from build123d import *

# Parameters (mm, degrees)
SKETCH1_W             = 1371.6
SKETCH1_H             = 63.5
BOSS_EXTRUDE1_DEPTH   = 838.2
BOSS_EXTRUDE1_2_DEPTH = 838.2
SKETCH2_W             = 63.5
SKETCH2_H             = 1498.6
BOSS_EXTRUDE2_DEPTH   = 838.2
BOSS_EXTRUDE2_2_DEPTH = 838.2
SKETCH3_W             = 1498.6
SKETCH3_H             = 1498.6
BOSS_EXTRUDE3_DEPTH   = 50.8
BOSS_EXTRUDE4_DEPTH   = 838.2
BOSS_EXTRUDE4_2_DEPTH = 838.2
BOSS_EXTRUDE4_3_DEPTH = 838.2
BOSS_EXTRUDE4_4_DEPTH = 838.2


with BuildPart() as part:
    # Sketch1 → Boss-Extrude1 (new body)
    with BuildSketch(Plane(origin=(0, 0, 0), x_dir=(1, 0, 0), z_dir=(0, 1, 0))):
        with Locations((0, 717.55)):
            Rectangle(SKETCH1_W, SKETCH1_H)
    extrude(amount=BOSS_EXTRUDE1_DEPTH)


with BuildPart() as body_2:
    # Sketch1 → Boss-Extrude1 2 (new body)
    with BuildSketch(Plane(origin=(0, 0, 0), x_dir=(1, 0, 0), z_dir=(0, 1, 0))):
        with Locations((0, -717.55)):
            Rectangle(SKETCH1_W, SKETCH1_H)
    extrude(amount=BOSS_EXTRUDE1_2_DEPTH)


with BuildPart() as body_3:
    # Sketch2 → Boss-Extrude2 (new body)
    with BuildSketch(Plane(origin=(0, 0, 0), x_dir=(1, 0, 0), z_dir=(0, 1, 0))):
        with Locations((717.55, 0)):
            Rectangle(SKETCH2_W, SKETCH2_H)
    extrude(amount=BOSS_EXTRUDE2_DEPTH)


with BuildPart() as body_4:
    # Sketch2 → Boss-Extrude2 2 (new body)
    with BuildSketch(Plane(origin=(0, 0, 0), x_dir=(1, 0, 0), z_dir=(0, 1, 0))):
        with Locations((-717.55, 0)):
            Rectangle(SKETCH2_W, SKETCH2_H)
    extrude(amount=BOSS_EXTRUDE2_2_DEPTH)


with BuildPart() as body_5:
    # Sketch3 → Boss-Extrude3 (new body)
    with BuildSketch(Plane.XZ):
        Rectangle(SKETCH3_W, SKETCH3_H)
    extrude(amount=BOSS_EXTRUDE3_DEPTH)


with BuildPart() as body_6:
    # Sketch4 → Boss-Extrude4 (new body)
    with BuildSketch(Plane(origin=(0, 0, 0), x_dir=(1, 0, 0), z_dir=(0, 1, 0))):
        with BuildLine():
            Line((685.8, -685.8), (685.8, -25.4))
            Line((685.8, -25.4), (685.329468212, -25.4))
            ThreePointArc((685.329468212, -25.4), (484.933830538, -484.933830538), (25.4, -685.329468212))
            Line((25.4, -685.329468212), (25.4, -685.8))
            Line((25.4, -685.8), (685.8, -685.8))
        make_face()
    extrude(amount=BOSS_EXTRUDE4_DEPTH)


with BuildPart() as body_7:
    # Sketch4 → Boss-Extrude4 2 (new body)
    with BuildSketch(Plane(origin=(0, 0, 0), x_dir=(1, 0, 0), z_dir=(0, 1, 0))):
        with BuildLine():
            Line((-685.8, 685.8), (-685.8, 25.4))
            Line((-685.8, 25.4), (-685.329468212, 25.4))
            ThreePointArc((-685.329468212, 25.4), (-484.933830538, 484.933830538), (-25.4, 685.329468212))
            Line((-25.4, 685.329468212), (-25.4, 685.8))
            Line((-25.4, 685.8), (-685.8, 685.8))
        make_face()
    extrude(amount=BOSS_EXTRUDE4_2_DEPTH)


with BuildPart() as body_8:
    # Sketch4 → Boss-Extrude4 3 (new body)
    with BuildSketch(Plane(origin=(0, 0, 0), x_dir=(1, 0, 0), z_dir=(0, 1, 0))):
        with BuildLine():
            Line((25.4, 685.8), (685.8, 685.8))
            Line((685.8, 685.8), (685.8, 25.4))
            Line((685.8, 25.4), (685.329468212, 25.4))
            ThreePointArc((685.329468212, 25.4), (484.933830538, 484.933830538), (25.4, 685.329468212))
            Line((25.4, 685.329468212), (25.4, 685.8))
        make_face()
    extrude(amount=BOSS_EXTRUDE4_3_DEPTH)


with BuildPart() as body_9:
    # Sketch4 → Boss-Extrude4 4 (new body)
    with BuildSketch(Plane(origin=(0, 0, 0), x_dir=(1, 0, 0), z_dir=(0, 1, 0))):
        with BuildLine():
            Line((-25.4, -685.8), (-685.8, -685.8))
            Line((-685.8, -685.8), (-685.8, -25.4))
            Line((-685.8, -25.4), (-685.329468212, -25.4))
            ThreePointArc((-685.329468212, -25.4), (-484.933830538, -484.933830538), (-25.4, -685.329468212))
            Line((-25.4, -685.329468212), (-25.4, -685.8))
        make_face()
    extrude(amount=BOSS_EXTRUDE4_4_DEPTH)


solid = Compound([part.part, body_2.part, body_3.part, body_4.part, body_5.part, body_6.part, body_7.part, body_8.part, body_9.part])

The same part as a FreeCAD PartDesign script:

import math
import FreeCAD as App
import Part
import Sketcher
Q = App.Units.Quantity


def add_polygon(sketch, points):
    """Adds a closed chain of lines whose ends are joined by coincident constraints."""
    first, n = sketch.GeometryCount, len(points)
    for a, b in zip(points, points[1:] + points[:1]):
        sketch.addGeometry(Part.LineSegment(App.Vector(*a, 0), App.Vector(*b, 0)), False)
    for i in range(n):
        sketch.addConstraint(Sketcher.Constraint("Coincident", first + i, 2, first + (i + 1) % n, 1))

doc = App.newDocument("Part")
body = doc.addObject("PartDesign::Body", "Body")

# Sketch on XZ plane
sketch1 = body.newObject("Sketcher::SketchObject", "Sketch")
sketch1.AttachmentSupport = (doc.getObject("XZ_Plane"), [""])
sketch1.MapMode = "FlatFace"
add_polygon(sketch1, [(-686, -749), (-686, -686), (686, -686), (686, -749)])  # lines 0-3
sketch1.addConstraint(Sketcher.Constraint("Vertical", 0))
sketch1.addConstraint(Sketcher.Constraint("Horizontal", 1))
sketch1.addConstraint(Sketcher.Constraint("Vertical", 2))
sketch1.addConstraint(Sketcher.Constraint("Horizontal", 3))
sketch1.addConstraint(Sketcher.Constraint("DistanceX", 1, 1, 1, 2, Q("54 in")))
sketch1.addConstraint(Sketcher.Constraint("DistanceY", 0, 1, 0, 2, Q("2.5 in")))
sketch1.addConstraint(Sketcher.Constraint("DistanceX", 0, 2, -1, 1, Q("27 in")))
sketch1.addConstraint(Sketcher.Constraint("DistanceY", 0, 2, -1, 1, Q("27 in")))
pad1 = body.newObject("PartDesign::Pad", "Pad")
pad1.Profile = sketch1
pad1.Length = Q("33 in")
pad1.Reversed = True
body2 = doc.addObject("PartDesign::Body", "Body001")

# Sketch on XZ plane
sketch2 = body2.newObject("Sketcher::SketchObject", "Sketch001")
sketch2.AttachmentSupport = (doc.getObject("XZ_Plane001"), [""])
sketch2.MapMode = "FlatFace"
add_polygon(sketch2, [(-686, 686), (-686, 749), (686, 749), (686, 686)])  # lines 0-3
sketch2.addConstraint(Sketcher.Constraint("Vertical", 0))
sketch2.addConstraint(Sketcher.Constraint("Horizontal", 1))
sketch2.addConstraint(Sketcher.Constraint("Vertical", 2))
sketch2.addConstraint(Sketcher.Constraint("Horizontal", 3))
sketch2.addConstraint(Sketcher.Constraint("DistanceX", 1, 1, 1, 2, Q("54 in")))
sketch2.addConstraint(Sketcher.Constraint("DistanceY", 0, 1, 0, 2, Q("2.5 in")))
sketch2.addConstraint(Sketcher.Constraint("DistanceX", 0, 2, -1, 1, Q("27 in")))
sketch2.addConstraint(Sketcher.Constraint("DistanceY", -1, 1, 2, 2, Q("27 in")))
pad2 = body2.newObject("PartDesign::Pad", "Pad001")
pad2.Profile = sketch2
pad2.Length = Q("33 in")
pad2.Reversed = True
body3 = doc.addObject("PartDesign::Body", "Body002")

# Sketch on XZ plane
sketch3 = body3.newObject("Sketcher::SketchObject", "Sketch002")
sketch3.AttachmentSupport = (doc.getObject("XZ_Plane002"), [""])
sketch3.MapMode = "FlatFace"
add_polygon(sketch3, [(686, -749), (686, 749), (749, 749), (749, -749)])  # lines 0-3
sketch3.addConstraint(Sketcher.Constraint("Vertical", 0))
sketch3.addConstraint(Sketcher.Constraint("Horizontal", 1))
sketch3.addConstraint(Sketcher.Constraint("Vertical", 2))
sketch3.addConstraint(Sketcher.Constraint("Horizontal", 3))
sketch3.addConstraint(Sketcher.Constraint("DistanceY", 0, 1, 0, 2, Q("59 in")))
sketch3.addConstraint(Sketcher.Constraint("DistanceX", 1, 1, 1, 2, Q("2.5 in")))
sketch3.addConstraint(Sketcher.Constraint("DistanceX", -1, 1, 0, 2, Q("27 in")))
sketch3.addConstraint(Sketcher.Constraint("DistanceY", -1, 1, 0, 2, Q("29.5 in")))
pad3 = body3.newObject("PartDesign::Pad", "Pad002")
pad3.Profile = sketch3
pad3.Length = Q("33 in")
pad3.Reversed = True
body4 = doc.addObject("PartDesign::Body", "Body003")

# Sketch on XZ plane
sketch4 = body4.newObject("Sketcher::SketchObject", "Sketch003")
sketch4.AttachmentSupport = (doc.getObject("XZ_Plane003"), [""])
sketch4.MapMode = "FlatFace"
add_polygon(sketch4, [(-749, -749), (-749, 749), (-686, 749), (-686, -749)])  # lines 0-3
sketch4.addConstraint(Sketcher.Constraint("Vertical", 0))
sketch4.addConstraint(Sketcher.Constraint("Horizontal", 1))
sketch4.addConstraint(Sketcher.Constraint("Vertical", 2))
sketch4.addConstraint(Sketcher.Constraint("Horizontal", 3))
sketch4.addConstraint(Sketcher.Constraint("DistanceY", 0, 1, 0, 2, Q("59 in")))
sketch4.addConstraint(Sketcher.Constraint("DistanceX", 1, 1, 1, 2, Q("2.5 in")))
sketch4.addConstraint(Sketcher.Constraint("DistanceX", 1, 2, -1, 1, Q("27 in")))
sketch4.addConstraint(Sketcher.Constraint("DistanceY", -1, 1, 0, 2, Q("29.5 in")))
pad4 = body4.newObject("PartDesign::Pad", "Pad003")
pad4.Profile = sketch4
pad4.Length = Q("33 in")
pad4.Reversed = True
body5 = doc.addObject("PartDesign::Body", "Body004")

# Sketch on XZ plane
sketch5 = body5.newObject("Sketcher::SketchObject", "Sketch004")
sketch5.AttachmentSupport = (doc.getObject("XZ_Plane004"), [""])
sketch5.MapMode = "FlatFace"
add_polygon(sketch5, [(-749, 749), (-749, -749), (749, -749), (749, 749)])  # lines 0-3
sketch5.addConstraint(Sketcher.Constraint("Vertical", 0))
sketch5.addConstraint(Sketcher.Constraint("Horizontal", 1))
sketch5.addConstraint(Sketcher.Constraint("Vertical", 2))
sketch5.addConstraint(Sketcher.Constraint("Horizontal", 3))
sketch5.addConstraint(Sketcher.Constraint("Symmetric", 0, 2, 2, 2, -1, 1))
sketch5.addConstraint(Sketcher.Constraint("Equal", 3, 0))
sketch5.addConstraint(Sketcher.Constraint("DistanceX", 1, 1, 1, 2, Q("59 in")))
pad5 = body5.newObject("PartDesign::Pad", "Pad004")
pad5.Profile = sketch5
pad5.Length = Q("2 in")
body6 = doc.addObject("PartDesign::Body", "Body005")

# Sketch on XZ plane
sketch6 = body6.newObject("Sketcher::SketchObject", "Sketch005")
sketch6.AttachmentSupport = (doc.getObject("XZ_Plane005"), [""])
sketch6.MapMode = "FlatFace"
sketch6.addGeometry(Part.LineSegment(App.Vector(685.8, 685.8, 0), App.Vector(685.8, 25.4, 0)), False)
sketch6.addGeometry(Part.LineSegment(App.Vector(685.8, 25.4, 0), App.Vector(685.33, 25.4, 0)), False)
sketch6.addGeometry(Part.ArcOfCircle(Part.Circle(App.Vector(0, 0, 0), App.Vector(0, 0, 1), 685.8), math.radians(2), math.radians(88)), False)
sketch6.addGeometry(Part.LineSegment(App.Vector(25.4, 685.33, 0), App.Vector(25.4, 685.8, 0)), False)
sketch6.addGeometry(Part.LineSegment(App.Vector(25.4, 685.8, 0), App.Vector(685.8, 685.8, 0)), False)
sketch6.addConstraint(Sketcher.Constraint("Coincident", 0, 2, 1, 1))
sketch6.addConstraint(Sketcher.Constraint("Coincident", 1, 2, 2, 1))
sketch6.addConstraint(Sketcher.Constraint("Coincident", 2, 2, 3, 1))
sketch6.addConstraint(Sketcher.Constraint("Coincident", 3, 2, 4, 1))
sketch6.addConstraint(Sketcher.Constraint("Coincident", 4, 2, 0, 1))
sketch6.addConstraint(Sketcher.Constraint("Vertical", 0))
sketch6.addConstraint(Sketcher.Constraint("Horizontal", 1))
sketch6.addConstraint(Sketcher.Constraint("Vertical", 3))
sketch6.addConstraint(Sketcher.Constraint("Horizontal", 4))
sketch6.addConstraint(Sketcher.Constraint("Coincident", 2, 3, -1, 1))
sketch6.addConstraint(Sketcher.Constraint("Equal", 4, 0))
sketch6.addConstraint(Sketcher.Constraint("Equal", 1, 3))
sketch6.addConstraint(Sketcher.Constraint("Radius", 2, Q("27 in")))
sketch6.addConstraint(Sketcher.Constraint("DistanceX", 4, 1, 4, 2, Q("26 in")))
sketch6.addConstraint(Sketcher.Constraint("DistanceX", -1, 1, 0, 2, Q("27 in")))
pad6 = body6.newObject("PartDesign::Pad", "Pad005")
pad6.Profile = sketch6
pad6.Length = Q("33 in")
pad6.Reversed = True
body7 = doc.addObject("PartDesign::Body", "Body006")

# Sketch on XZ plane
sketch7 = body7.newObject("Sketcher::SketchObject", "Sketch006")
sketch7.AttachmentSupport = (doc.getObject("XZ_Plane006"), [""])
sketch7.MapMode = "FlatFace"
sketch7.addGeometry(Part.LineSegment(App.Vector(-685.8, -685.8, 0), App.Vector(-685.8, -25.4, 0)), False)
sketch7.addGeometry(Part.LineSegment(App.Vector(-685.8, -25.4, 0), App.Vector(-685.329468, -25.4, 0)), False)
sketch7.addGeometry(Part.ArcOfCircle(Part.Circle(App.Vector(0, 0, 0), App.Vector(0, 0, 1), 685.8), math.radians(-177.877449), math.radians(-92.122551)), False)
sketch7.addGeometry(Part.LineSegment(App.Vector(-25.4, -685.329468, 0), App.Vector(-25.4, -685.8, 0)), False)
sketch7.addGeometry(Part.LineSegment(App.Vector(-25.4, -685.8, 0), App.Vector(-685.8, -685.8, 0)), False)
sketch7.addConstraint(Sketcher.Constraint("Coincident", 0, 2, 1, 1))
sketch7.addConstraint(Sketcher.Constraint("Coincident", 1, 2, 2, 1))
sketch7.addConstraint(Sketcher.Constraint("Coincident", 2, 2, 3, 1))
sketch7.addConstraint(Sketcher.Constraint("Coincident", 3, 2, 4, 1))
sketch7.addConstraint(Sketcher.Constraint("Coincident", 4, 2, 0, 1))
sketch7.addConstraint(Sketcher.Constraint("Vertical", 0))
sketch7.addConstraint(Sketcher.Constraint("Horizontal", 1))
sketch7.addConstraint(Sketcher.Constraint("Vertical", 3))
sketch7.addConstraint(Sketcher.Constraint("Horizontal", 4))
sketch7.addConstraint(Sketcher.Constraint("Coincident", 2, 3, -1, 1))
sketch7.addConstraint(Sketcher.Constraint("Equal", 4, 0))
sketch7.addConstraint(Sketcher.Constraint("Equal", 1, 3))
sketch7.addConstraint(Sketcher.Constraint("Radius", 2, Q("27 in")))
sketch7.addConstraint(Sketcher.Constraint("DistanceX", 4, 2, 4, 1, Q("26 in")))
sketch7.addConstraint(Sketcher.Constraint("DistanceX", 0, 2, -1, 1, Q("27 in")))
pad7 = body7.newObject("PartDesign::Pad", "Pad006")
pad7.Profile = sketch7
pad7.Length = Q("33 in")
pad7.Reversed = True
body8 = doc.addObject("PartDesign::Body", "Body007")

# Sketch on XZ plane
sketch8 = body8.newObject("Sketcher::SketchObject", "Sketch007")
sketch8.AttachmentSupport = (doc.getObject("XZ_Plane007"), [""])
sketch8.MapMode = "FlatFace"
sketch8.addGeometry(Part.LineSegment(App.Vector(685.8, -685.8, 0), App.Vector(25.4, -685.8, 0)), False)
sketch8.addGeometry(Part.LineSegment(App.Vector(25.4, -685.8, 0), App.Vector(25.4, -685.33, 0)), False)
sketch8.addGeometry(Part.ArcOfCircle(Part.Circle(App.Vector(0, 0, 0), App.Vector(0, 0, 1), 685.8), math.radians(-88), math.radians(-2)), False)
sketch8.addGeometry(Part.LineSegment(App.Vector(685.33, -25.4, 0), App.Vector(685.8, -25.4, 0)), False)
sketch8.addGeometry(Part.LineSegment(App.Vector(685.8, -25.4, 0), App.Vector(685.8, -685.8, 0)), False)
sketch8.addConstraint(Sketcher.Constraint("Coincident", 0, 2, 1, 1))
sketch8.addConstraint(Sketcher.Constraint("Coincident", 1, 2, 2, 1))
sketch8.addConstraint(Sketcher.Constraint("Coincident", 2, 2, 3, 1))
sketch8.addConstraint(Sketcher.Constraint("Coincident", 3, 2, 4, 1))
sketch8.addConstraint(Sketcher.Constraint("Coincident", 4, 2, 0, 1))
sketch8.addConstraint(Sketcher.Constraint("Horizontal", 0))
sketch8.addConstraint(Sketcher.Constraint("Vertical", 1))
sketch8.addConstraint(Sketcher.Constraint("Horizontal", 3))
sketch8.addConstraint(Sketcher.Constraint("Vertical", 4))
sketch8.addConstraint(Sketcher.Constraint("Coincident", 2, 3, -1, 1))
sketch8.addConstraint(Sketcher.Constraint("Equal", 3, 1))
sketch8.addConstraint(Sketcher.Constraint("Equal", 0, 4))
sketch8.addConstraint(Sketcher.Constraint("Radius", 2, Q("27 in")))
sketch8.addConstraint(Sketcher.Constraint("DistanceX", 0, 2, 0, 1, Q("26 in")))
sketch8.addConstraint(Sketcher.Constraint("DistanceX", -1, 1, 0, 2, Q("1 in")))
pad8 = body8.newObject("PartDesign::Pad", "Pad007")
pad8.Profile = sketch8
pad8.Length = Q("33 in")
pad8.Reversed = True
body9 = doc.addObject("PartDesign::Body", "Body008")

# Sketch on XZ plane
sketch9 = body9.newObject("Sketcher::SketchObject", "Sketch008")
sketch9.AttachmentSupport = (doc.getObject("XZ_Plane008"), [""])
sketch9.MapMode = "FlatFace"
sketch9.addGeometry(Part.LineSegment(App.Vector(-685.8, 685.8, 0), App.Vector(-25.4, 685.8, 0)), False)
sketch9.addGeometry(Part.LineSegment(App.Vector(-25.4, 685.8, 0), App.Vector(-25.4, 685.33, 0)), False)
sketch9.addGeometry(Part.ArcOfCircle(Part.Circle(App.Vector(0, 0, 0), App.Vector(0, 0, 1), 685.8), math.radians(92), math.radians(178)), False)
sketch9.addGeometry(Part.LineSegment(App.Vector(-685.33, 25.4, 0), App.Vector(-685.8, 25.4, 0)), False)
sketch9.addGeometry(Part.LineSegment(App.Vector(-685.8, 25.4, 0), App.Vector(-685.8, 685.8, 0)), False)
sketch9.addConstraint(Sketcher.Constraint("Coincident", 0, 2, 1, 1))
sketch9.addConstraint(Sketcher.Constraint("Coincident", 1, 2, 2, 1))
sketch9.addConstraint(Sketcher.Constraint("Coincident", 2, 2, 3, 1))
sketch9.addConstraint(Sketcher.Constraint("Coincident", 3, 2, 4, 1))
sketch9.addConstraint(Sketcher.Constraint("Coincident", 4, 2, 0, 1))
sketch9.addConstraint(Sketcher.Constraint("Horizontal", 0))
sketch9.addConstraint(Sketcher.Constraint("Vertical", 1))
sketch9.addConstraint(Sketcher.Constraint("Horizontal", 3))
sketch9.addConstraint(Sketcher.Constraint("Vertical", 4))
sketch9.addConstraint(Sketcher.Constraint("Coincident", 2, 3, -1, 1))
sketch9.addConstraint(Sketcher.Constraint("Equal", 3, 1))
sketch9.addConstraint(Sketcher.Constraint("Equal", 0, 4))
sketch9.addConstraint(Sketcher.Constraint("Radius", 2, Q("27 in")))
sketch9.addConstraint(Sketcher.Constraint("DistanceX", 0, 1, 0, 2, Q("26 in")))
sketch9.addConstraint(Sketcher.Constraint("DistanceX", 0, 2, -1, 1, Q("1 in")))
pad9 = body9.newObject("PartDesign::Pad", "Pad008")
pad9.Profile = sketch9
pad9.Length = Q("33 in")
pad9.Reversed = True

doc.recompute()
